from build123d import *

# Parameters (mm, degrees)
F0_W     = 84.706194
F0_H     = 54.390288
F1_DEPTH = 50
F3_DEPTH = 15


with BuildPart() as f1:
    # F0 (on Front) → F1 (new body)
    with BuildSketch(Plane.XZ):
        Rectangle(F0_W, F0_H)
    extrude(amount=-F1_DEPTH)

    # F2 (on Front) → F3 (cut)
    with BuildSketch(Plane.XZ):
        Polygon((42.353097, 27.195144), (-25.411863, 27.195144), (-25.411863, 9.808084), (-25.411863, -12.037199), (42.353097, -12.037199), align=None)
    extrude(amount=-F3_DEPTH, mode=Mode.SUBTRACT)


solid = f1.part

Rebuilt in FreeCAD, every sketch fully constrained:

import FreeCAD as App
import Part
import Sketcher
Q = App.Units.Quantity


def add_polygon(sketch, points):
    """Adds a closed chain of lines whose ends are joined by coincident constraints."""
    first, n = sketch.GeometryCount, len(points)
    for a, b in zip(points, points[1:] + points[:1]):
        sketch.addGeometry(Part.LineSegment(App.Vector(*a, 0), App.Vector(*b, 0)), False)
    for i in range(n):
        sketch.addConstraint(Sketcher.Constraint("Coincident", first + i, 2, first + (i + 1) % n, 1))

doc = App.newDocument("Part")
params = doc.addObject("Spreadsheet::Sheet", "Params")
for row, (alias, value) in enumerate([
    ("pad1_length", "50 mm"),
    ("pocket1_length", "15 mm"),
], start=1):
    params.set(f"A{row}", alias)
    params.set(f"B{row}", "=" + value)
    params.setAlias(f"B{row}", alias)

body = doc.addObject("PartDesign::Body", "Body")

# Sketch on XZ plane
sketch1 = doc.addObject("Sketcher::SketchObject", "Sketch")
body.addObject(sketch1)
sketch1.AttachmentSupport = (doc.XZ_Plane, [""])
sketch1.MapMode = "FlatFace"
add_polygon(sketch1, [(-42, 27), (-42, -27), (42, -27), (42, 27)])  # lines 0-3
sketch1.addConstraint([
    Sketcher.Constraint("Vertical", 0),
    Sketcher.Constraint("Horizontal", 1),
    Sketcher.Constraint("Vertical", 2),
    Sketcher.Constraint("Horizontal", 3),
    Sketcher.Constraint("Symmetric", 0, 2, 2, 2, -1, 1),
    Sketcher.Constraint("DistanceX", 1, 1, 1, 2, Q("84.706194 mm")),
    Sketcher.Constraint("DistanceY", 0, 2, 0, 1, Q("54.390288 mm")),
])
pad1 = doc.addObject("PartDesign::Pad", "Pad")
body.addObject(pad1)
pad1.Profile = sketch1
pad1.setExpression("Length", "Params.pad1_length")
pad1.Reversed = True

# Sketch on XZ plane
sketch2 = doc.addObject("Sketcher::SketchObject", "Sketch001")
body.addObject(sketch2)
sketch2.AttachmentSupport = (doc.XZ_Plane, [""])
sketch2.MapMode = "FlatFace"
add_polygon(sketch2, [(42, 27), (-25, 27), (-25, -12), (42, -12)])  # lines 0-3
sketch2.addConstraint([
    Sketcher.Constraint("Horizontal", 0),
    Sketcher.Constraint("Vertical", 1),
    Sketcher.Constraint("Horizontal", 2),
    Sketcher.Constraint("Vertical", 3),
    Sketcher.Constraint("DistanceX", 0, 2, 0, 1, Q("67.76496 mm")),
    Sketcher.Constraint("DistanceY", 1, 2, -1, 1, Q("12.037199 mm")),
    Sketcher.Constraint("DistanceY", 1, 2, 1, 1, Q("39.232343 mm")),
    Sketcher.Constraint("DistanceX", 0, 2, -1, 1, Q("25.411863 mm")),
])
pocket1 = doc.addObject("PartDesign::Pocket", "Pocket")
body.addObject(pocket1)
pocket1.Profile = sketch2
pocket1.setExpression("Length", "Params.pocket1_length")

doc.recompute()
